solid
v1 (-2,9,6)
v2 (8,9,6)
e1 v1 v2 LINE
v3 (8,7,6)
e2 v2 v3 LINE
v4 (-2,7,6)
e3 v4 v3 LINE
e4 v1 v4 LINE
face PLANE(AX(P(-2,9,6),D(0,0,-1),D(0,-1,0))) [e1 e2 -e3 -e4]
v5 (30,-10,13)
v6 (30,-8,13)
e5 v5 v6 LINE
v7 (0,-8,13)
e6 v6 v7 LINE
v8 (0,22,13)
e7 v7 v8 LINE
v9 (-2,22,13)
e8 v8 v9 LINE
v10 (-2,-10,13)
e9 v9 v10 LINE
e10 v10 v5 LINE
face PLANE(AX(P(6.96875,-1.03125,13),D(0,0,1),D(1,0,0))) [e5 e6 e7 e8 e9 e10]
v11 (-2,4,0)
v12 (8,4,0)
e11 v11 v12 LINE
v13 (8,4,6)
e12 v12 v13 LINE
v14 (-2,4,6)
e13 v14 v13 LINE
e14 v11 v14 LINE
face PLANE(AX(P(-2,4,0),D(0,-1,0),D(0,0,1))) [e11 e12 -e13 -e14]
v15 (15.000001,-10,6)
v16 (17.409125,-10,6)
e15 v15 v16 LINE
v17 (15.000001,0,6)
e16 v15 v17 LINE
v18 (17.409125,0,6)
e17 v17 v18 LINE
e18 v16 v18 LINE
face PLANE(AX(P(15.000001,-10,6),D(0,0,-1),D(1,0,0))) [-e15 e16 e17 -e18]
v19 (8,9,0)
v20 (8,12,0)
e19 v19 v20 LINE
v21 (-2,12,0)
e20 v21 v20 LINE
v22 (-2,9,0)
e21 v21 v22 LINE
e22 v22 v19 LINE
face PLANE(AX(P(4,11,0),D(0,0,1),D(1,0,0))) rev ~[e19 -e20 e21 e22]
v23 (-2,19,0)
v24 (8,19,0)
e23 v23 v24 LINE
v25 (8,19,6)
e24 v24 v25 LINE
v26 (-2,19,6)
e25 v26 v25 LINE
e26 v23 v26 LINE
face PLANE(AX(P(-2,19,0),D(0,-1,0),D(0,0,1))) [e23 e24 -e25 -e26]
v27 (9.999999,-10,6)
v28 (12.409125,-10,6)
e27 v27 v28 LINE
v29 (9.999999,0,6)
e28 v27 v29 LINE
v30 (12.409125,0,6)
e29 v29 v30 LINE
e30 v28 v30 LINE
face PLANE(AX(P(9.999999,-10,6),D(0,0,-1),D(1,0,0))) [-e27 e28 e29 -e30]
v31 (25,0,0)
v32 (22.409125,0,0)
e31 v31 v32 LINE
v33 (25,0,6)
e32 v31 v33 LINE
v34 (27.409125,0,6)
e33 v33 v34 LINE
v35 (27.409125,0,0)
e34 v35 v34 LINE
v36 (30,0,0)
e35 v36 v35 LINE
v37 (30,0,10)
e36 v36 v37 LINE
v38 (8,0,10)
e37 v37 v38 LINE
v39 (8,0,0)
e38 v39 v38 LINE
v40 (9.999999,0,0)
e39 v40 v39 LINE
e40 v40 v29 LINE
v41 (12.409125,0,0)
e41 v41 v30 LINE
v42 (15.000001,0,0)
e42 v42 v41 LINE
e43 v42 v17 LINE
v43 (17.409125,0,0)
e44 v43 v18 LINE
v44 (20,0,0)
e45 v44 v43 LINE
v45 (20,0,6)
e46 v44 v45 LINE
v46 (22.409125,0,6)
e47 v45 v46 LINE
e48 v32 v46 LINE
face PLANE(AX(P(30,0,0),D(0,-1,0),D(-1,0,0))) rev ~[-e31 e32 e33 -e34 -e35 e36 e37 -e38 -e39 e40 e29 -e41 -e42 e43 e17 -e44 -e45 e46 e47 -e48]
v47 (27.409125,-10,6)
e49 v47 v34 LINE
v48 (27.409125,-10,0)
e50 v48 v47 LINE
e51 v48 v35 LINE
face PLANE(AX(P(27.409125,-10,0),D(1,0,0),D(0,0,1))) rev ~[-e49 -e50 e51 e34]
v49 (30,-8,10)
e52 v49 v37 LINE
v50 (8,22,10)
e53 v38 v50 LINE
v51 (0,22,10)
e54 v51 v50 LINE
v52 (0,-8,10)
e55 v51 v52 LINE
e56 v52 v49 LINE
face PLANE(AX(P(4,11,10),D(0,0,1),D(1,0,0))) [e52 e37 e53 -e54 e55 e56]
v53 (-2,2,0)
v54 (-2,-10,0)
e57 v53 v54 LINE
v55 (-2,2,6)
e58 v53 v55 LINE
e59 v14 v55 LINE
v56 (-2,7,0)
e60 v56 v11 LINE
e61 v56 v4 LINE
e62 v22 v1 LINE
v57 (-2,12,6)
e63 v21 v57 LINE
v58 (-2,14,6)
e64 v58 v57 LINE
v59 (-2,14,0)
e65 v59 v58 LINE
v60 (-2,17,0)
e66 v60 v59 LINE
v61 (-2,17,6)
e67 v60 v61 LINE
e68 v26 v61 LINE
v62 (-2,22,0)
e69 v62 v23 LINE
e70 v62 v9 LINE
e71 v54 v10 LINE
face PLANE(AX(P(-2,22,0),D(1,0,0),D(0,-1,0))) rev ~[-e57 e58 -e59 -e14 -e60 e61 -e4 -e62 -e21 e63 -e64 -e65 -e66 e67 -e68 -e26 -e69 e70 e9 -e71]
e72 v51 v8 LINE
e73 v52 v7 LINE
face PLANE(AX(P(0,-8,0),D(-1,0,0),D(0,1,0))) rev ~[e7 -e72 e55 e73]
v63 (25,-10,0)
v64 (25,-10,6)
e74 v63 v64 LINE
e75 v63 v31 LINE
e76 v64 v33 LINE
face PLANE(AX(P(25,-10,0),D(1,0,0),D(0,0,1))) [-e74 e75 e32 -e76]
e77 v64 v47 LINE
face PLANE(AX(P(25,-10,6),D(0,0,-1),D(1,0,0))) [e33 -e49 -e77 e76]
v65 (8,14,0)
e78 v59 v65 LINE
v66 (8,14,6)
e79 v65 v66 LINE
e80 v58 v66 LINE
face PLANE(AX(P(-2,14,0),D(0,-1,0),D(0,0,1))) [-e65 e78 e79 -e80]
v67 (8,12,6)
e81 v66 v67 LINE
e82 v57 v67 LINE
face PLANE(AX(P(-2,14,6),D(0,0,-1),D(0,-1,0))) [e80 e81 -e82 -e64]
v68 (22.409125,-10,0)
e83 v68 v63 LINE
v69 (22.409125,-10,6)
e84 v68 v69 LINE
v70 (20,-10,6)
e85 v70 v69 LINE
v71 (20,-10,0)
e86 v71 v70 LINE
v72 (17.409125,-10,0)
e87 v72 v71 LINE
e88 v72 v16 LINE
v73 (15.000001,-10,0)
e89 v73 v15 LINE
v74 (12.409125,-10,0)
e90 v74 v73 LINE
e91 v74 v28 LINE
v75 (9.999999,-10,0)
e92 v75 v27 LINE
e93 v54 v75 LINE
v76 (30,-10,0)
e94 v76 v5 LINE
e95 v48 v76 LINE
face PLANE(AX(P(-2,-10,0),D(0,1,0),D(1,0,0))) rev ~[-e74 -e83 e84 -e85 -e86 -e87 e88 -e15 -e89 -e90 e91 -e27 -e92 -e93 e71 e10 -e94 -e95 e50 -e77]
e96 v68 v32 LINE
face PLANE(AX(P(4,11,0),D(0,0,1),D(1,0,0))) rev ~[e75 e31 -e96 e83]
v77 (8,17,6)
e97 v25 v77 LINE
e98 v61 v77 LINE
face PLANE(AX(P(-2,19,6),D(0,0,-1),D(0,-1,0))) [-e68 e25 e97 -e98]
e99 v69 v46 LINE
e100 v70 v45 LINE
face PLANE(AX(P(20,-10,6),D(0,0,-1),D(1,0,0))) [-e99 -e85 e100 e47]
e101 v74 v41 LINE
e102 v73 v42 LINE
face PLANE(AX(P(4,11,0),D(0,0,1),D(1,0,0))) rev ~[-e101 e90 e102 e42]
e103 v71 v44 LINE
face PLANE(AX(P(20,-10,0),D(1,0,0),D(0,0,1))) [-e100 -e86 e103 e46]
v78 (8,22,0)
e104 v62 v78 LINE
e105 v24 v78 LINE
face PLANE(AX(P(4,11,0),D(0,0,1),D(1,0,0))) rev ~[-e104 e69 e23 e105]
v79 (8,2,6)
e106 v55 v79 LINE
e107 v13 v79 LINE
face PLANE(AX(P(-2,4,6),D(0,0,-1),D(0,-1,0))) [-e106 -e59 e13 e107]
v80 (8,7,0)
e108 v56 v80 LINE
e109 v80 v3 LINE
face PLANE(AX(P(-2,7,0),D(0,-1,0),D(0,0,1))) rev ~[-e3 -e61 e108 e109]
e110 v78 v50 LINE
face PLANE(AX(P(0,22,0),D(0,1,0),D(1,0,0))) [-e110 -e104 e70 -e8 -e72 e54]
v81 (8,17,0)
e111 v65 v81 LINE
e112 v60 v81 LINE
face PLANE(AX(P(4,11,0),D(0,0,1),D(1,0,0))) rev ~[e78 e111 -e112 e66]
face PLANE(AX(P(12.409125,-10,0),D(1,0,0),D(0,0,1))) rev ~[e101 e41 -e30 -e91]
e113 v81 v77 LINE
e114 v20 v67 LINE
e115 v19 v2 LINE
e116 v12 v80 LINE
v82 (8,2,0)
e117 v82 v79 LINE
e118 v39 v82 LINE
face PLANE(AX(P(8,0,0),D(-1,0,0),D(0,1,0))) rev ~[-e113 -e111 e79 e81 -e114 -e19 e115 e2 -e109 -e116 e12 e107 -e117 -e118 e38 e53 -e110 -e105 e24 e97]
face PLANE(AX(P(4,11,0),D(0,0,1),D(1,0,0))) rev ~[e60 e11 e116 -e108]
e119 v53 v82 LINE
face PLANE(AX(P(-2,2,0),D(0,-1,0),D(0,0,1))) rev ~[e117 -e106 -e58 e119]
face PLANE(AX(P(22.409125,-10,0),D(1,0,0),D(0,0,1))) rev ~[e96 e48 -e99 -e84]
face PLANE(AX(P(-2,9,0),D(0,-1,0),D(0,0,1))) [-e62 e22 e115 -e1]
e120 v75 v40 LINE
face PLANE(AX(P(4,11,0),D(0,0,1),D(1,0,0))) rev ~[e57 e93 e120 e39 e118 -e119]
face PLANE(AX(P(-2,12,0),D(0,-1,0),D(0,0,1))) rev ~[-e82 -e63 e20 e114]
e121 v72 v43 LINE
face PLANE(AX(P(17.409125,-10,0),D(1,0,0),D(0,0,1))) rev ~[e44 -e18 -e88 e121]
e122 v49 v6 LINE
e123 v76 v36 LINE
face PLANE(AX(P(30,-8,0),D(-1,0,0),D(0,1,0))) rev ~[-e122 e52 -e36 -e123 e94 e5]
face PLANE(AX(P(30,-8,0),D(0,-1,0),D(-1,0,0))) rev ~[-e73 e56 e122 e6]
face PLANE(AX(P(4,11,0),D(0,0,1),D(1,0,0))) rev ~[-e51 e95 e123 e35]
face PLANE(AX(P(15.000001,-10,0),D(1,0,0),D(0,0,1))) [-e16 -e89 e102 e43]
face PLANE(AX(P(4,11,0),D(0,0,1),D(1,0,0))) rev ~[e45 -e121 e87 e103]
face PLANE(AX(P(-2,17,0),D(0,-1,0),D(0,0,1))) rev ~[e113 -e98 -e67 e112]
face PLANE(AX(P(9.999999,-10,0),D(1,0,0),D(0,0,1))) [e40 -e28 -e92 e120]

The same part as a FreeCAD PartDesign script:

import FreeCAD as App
import Part
import Sketcher
from FreeCAD import Vector
Q = App.Units.Quantity


def add_polygon(sketch, points):
    """Adds a closed chain of lines whose ends are joined by coincident constraints."""
    first, n = sketch.GeometryCount, len(points)
    for a, b in zip(points, points[1:] + points[:1]):
        sketch.addGeometry(Part.LineSegment(App.Vector(*a, 0), App.Vector(*b, 0)), False)
    for i in range(n):
        sketch.addConstraint(Sketcher.Constraint("Coincident", first + i, 2, first + (i + 1) % n, 1))

doc = App.newDocument("Part")
params = doc.addObject("Spreadsheet::Sheet", "Params")
for row, (alias, value) in enumerate([
    ("sketch1_width", "2 mm"),
    ("sketch1_width2", "32 mm"),
    ("pad1_length", "13 mm"),
    ("sketch2_width", "30 mm"),
    ("sketch2_width2", "22 mm"),
    ("pad2_length", "10 mm"),
    ("sketch3_height", "6 mm"),
    ("pocket1_length", "25 mm"),
    ("sketch4_width", "2 mm"),
    ("sketch4_height", "6 mm"),
    ("pocket2_length", "25 mm"),
], start=1):
    params.set(f"A{row}", alias)
    params.set(f"B{row}", "=" + value)
    params.setAlias(f"B{row}", alias)

body = doc.addObject("PartDesign::Body", "Body")

# Sketch on XY plane
sketch1 = body.newObject("Sketcher::SketchObject", "Sketch")
sketch1.AttachmentSupport = (doc.getObject("XY_Plane"), [""])
sketch1.MapMode = "FlatFace"
add_polygon(sketch1, [(0, -8), (0, 22), (-2, 22), (-2, -10), (30, -10), (30, -8)])  # lines 0-5
sketch1.addConstraint([
    Sketcher.Constraint("Vertical", 0),
    Sketcher.Constraint("Horizontal", 1),
    Sketcher.Constraint("Vertical", 2),
    Sketcher.Constraint("Horizontal", 3),
    Sketcher.Constraint("Vertical", 4),
    Sketcher.Constraint("Horizontal", 5),
    Sketcher.Constraint("PointOnObject", 0, 2, -2),
    Sketcher.Constraint("Equal", 5, 0),
    Sketcher.Constraint("Equal", 3, 2),
    Sketcher.Constraint("DistanceX", 1, 2, 1, 1, Q("2 mm")),
    Sketcher.Constraint("DistanceX", 3, 1, 3, 2, Q("32 mm")),
    Sketcher.Constraint("DistanceY", -1, 1, 0, 2, Q("22 mm")),
])
sketch1.setExpression("Constraints[15]", "Params.sketch1_width")
sketch1.setExpression("Constraints[16]", "Params.sketch1_width2")
pad1 = body.newObject("PartDesign::Pad", "Pad")
pad1.Profile = sketch1
pad1.setExpression("Length", "Params.pad1_length")

# Sketch on XY plane
sketch2 = body.newObject("Sketcher::SketchObject", "Sketch001")
sketch2.AttachmentSupport = (doc.getObject("XY_Plane"), [""])
sketch2.MapMode = "FlatFace"
add_polygon(sketch2, [(0, 22), (0, -8), (30, -8), (30, 0), (8, 0), (8, 22)])  # lines 0-5
sketch2.addConstraint([
    Sketcher.Constraint("Vertical", 0),
    Sketcher.Constraint("Horizontal", 1),
    Sketcher.Constraint("Vertical", 2),
    Sketcher.Constraint("Horizontal", 3),
    Sketcher.Constraint("Vertical", 4),
    Sketcher.Constraint("Horizontal", 5),
    Sketcher.Constraint("PointOnObject", 0, 2, -2),
    Sketcher.Constraint("PointOnObject", 2, 2, -1),
    Sketcher.Constraint("Equal", 1, 0),
    Sketcher.Constraint("Equal", 5, 2),
    Sketcher.Constraint("DistanceX", 1, 1, 1, 2, Q("30 mm")),
    Sketcher.Constraint("DistanceX", 3, 2, 3, 1, Q("22 mm")),
])
sketch2.setExpression("Constraints[16]", "Params.sketch2_width")
sketch2.setExpression("Constraints[17]", "Params.sketch2_width2")
pad2 = body.newObject("PartDesign::Pad", "Pad001")
pad2.Profile = sketch2
pad2.setExpression("Length", "Params.pad2_length")

# Sketch on XZ plane
sketch3 = body.newObject("Sketcher::SketchObject", "Sketch002")
sketch3.AttachmentSupport = (doc.getObject("XZ_Plane"), [""])
sketch3.MapMode = "FlatFace"
sketch3.AttachmentOffset = App.Placement(Vector(0, 0, 10), App.Rotation())
add_polygon(sketch3, [(9.999999, 6), (9.999999, 0), (12.409125, 0), (12.409125, 6)])  # lines 0-3
add_polygon(sketch3, [(15.000001, 6), (15.000001, 0), (17.409125, 0), (17.409125, 6)])  # lines 4-7
add_polygon(sketch3, [(20, 6), (20, 0), (22.409125, 0), (22.409125, 6)])  # lines 8-11
add_polygon(sketch3, [(25, 6), (25, 0), (27.409125, 0), (27.409125, 6)])  # lines 12-15
sketch3.addConstraint([
    Sketcher.Constraint("Vertical", 0),
    Sketcher.Constraint("Horizontal", 1),
    Sketcher.Constraint("Vertical", 2),
    Sketcher.Constraint("Horizontal", 3),
    Sketcher.Constraint("Vertical", 4),
    Sketcher.Constraint("Horizontal", 5),
    Sketcher.Constraint("Vertical", 6),
    Sketcher.Constraint("Horizontal", 7),
    Sketcher.Constraint("Vertical", 8),
    Sketcher.Constraint("Horizontal", 9),
    Sketcher.Constraint("Vertical", 10),
    Sketcher.Constraint("Horizontal", 11),
    Sketcher.Constraint("Vertical", 12),
    Sketcher.Constraint("Horizontal", 13),
    Sketcher.Constraint("Vertical", 14),
    Sketcher.Constraint("Horizontal", 15),
    Sketcher.Constraint("PointOnObject", 0, 2, -1),
    Sketcher.Constraint("PointOnObject", 4, 2, -1),
    Sketcher.Constraint("PointOnObject", 8, 2, -1),
    Sketcher.Constraint("PointOnObject", 12, 2, -1),
    Sketcher.Constraint("Horizontal", 3, 2, 6, 2),
    Sketcher.Constraint("Horizontal", 7, 2, 10, 2),
    Sketcher.Constraint("Horizontal", 11, 2, 14, 2),
    Sketcher.Constraint("Equal", 3, 5),
    Sketcher.Constraint("Equal", 7, 9),
    Sketcher.Constraint("Equal", 11, 13),
    Sketcher.Constraint("DistanceY", 0, 2, 0, 1, Q("6 mm")),
    Sketcher.Constraint("DistanceX", -1, 1, 0, 2, Q("9.999999 mm")),
    Sketcher.Constraint("DistanceX", -1, 1, 4, 2, Q("15.000001 mm")),
    Sketcher.Constraint("DistanceX", -1, 1, 8, 2, Q("20 mm")),
    Sketcher.Constraint("DistanceX", -1, 1, 12, 2, Q("25 mm")),
    Sketcher.Constraint("DistanceX", 1, 1, 1, 2, Q("2.409125 mm")),
])
sketch3.setExpression("Constraints[42]", "Params.sketch3_height")
pocket1 = body.newObject("PartDesign::Pocket", "Pocket")
pocket1.Profile = sketch3
pocket1.setExpression("Length", "Params.pocket1_length")

# Sketch on YZ plane
sketch4 = body.newObject("Sketcher::SketchObject", "Sketch003")
sketch4.AttachmentSupport = (doc.getObject("YZ_Plane"), [""])
sketch4.MapMode = "FlatFace"
sketch4.AttachmentOffset = App.Placement(Vector(0, 0, -2), App.Rotation())
add_polygon(sketch4, [(14, 6), (14, 0), (12, 0), (12, 6)])  # lines 0-3
add_polygon(sketch4, [(19, 6), (19, 0), (17, 0), (17, 6)])  # lines 4-7
add_polygon(sketch4, [(9, 6), (9, 0), (7, 0), (7, 6)])  # lines 8-11
add_polygon(sketch4, [(4, 6), (4, 0), (2, 0), (2, 6)])  # lines 12-15
sketch4.addConstraint([
    Sketcher.Constraint("Vertical", 0),
    Sketcher.Constraint("Horizontal", 1),
    Sketcher.Constraint("Vertical", 2),
    Sketcher.Constraint("Horizontal", 3),
    Sketcher.Constraint("Vertical", 4),
    Sketcher.Constraint("Horizontal", 5),
    Sketcher.Constraint("Vertical", 6),
    Sketcher.Constraint("Horizontal", 7),
    Sketcher.Constraint("Vertical", 8),
    Sketcher.Constraint("Horizontal", 9),
    Sketcher.Constraint("Vertical", 10),
    Sketcher.Constraint("Horizontal", 11),
    Sketcher.Constraint("Vertical", 12),
    Sketcher.Constraint("Horizontal", 13),
    Sketcher.Constraint("Vertical", 14),
    Sketcher.Constraint("Horizontal", 15),
    Sketcher.Constraint("PointOnObject", 0, 2, -1),
    Sketcher.Constraint("PointOnObject", 4, 2, -1),
    Sketcher.Constraint("PointOnObject", 8, 2, -1),
    Sketcher.Constraint("PointOnObject", 12, 2, -1),
    Sketcher.Constraint("Horizontal", 3, 2, 6, 2),
    Sketcher.Constraint("Horizontal", 7, 2, 10, 2),
    Sketcher.Constraint("Horizontal", 11, 2, 14, 2),
    Sketcher.Constraint("Equal", 3, 5),
    Sketcher.Constraint("Equal", 7, 9),
    Sketcher.Constraint("Equal", 11, 13),
    Sketcher.Constraint("DistanceX", 1, 2, 1, 1, Q("2 mm")),
    Sketcher.Constraint("DistanceY", 0, 2, 0, 1, Q("6 mm")),
    Sketcher.Constraint("DistanceX", -1, 1, 0, 2, Q("14 mm")),
    Sketcher.Constraint("DistanceX", -1, 1, 4, 2, Q("19 mm")),
    Sketcher.Constraint("DistanceX", -1, 1, 8, 2, Q("9 mm")),
    Sketcher.Constraint("DistanceX", -1, 1, 12, 2, Q("4 mm")),
])
sketch4.setExpression("Constraints[42]", "Params.sketch4_width")
sketch4.setExpression("Constraints[43]", "Params.sketch4_height")
pocket2 = body.newObject("PartDesign::Pocket", "Pocket001")
pocket2.Profile = sketch4
pocket2.setExpression("Length", "Params.pocket2_length")
pocket2.Reversed = True

doc.recompute()
